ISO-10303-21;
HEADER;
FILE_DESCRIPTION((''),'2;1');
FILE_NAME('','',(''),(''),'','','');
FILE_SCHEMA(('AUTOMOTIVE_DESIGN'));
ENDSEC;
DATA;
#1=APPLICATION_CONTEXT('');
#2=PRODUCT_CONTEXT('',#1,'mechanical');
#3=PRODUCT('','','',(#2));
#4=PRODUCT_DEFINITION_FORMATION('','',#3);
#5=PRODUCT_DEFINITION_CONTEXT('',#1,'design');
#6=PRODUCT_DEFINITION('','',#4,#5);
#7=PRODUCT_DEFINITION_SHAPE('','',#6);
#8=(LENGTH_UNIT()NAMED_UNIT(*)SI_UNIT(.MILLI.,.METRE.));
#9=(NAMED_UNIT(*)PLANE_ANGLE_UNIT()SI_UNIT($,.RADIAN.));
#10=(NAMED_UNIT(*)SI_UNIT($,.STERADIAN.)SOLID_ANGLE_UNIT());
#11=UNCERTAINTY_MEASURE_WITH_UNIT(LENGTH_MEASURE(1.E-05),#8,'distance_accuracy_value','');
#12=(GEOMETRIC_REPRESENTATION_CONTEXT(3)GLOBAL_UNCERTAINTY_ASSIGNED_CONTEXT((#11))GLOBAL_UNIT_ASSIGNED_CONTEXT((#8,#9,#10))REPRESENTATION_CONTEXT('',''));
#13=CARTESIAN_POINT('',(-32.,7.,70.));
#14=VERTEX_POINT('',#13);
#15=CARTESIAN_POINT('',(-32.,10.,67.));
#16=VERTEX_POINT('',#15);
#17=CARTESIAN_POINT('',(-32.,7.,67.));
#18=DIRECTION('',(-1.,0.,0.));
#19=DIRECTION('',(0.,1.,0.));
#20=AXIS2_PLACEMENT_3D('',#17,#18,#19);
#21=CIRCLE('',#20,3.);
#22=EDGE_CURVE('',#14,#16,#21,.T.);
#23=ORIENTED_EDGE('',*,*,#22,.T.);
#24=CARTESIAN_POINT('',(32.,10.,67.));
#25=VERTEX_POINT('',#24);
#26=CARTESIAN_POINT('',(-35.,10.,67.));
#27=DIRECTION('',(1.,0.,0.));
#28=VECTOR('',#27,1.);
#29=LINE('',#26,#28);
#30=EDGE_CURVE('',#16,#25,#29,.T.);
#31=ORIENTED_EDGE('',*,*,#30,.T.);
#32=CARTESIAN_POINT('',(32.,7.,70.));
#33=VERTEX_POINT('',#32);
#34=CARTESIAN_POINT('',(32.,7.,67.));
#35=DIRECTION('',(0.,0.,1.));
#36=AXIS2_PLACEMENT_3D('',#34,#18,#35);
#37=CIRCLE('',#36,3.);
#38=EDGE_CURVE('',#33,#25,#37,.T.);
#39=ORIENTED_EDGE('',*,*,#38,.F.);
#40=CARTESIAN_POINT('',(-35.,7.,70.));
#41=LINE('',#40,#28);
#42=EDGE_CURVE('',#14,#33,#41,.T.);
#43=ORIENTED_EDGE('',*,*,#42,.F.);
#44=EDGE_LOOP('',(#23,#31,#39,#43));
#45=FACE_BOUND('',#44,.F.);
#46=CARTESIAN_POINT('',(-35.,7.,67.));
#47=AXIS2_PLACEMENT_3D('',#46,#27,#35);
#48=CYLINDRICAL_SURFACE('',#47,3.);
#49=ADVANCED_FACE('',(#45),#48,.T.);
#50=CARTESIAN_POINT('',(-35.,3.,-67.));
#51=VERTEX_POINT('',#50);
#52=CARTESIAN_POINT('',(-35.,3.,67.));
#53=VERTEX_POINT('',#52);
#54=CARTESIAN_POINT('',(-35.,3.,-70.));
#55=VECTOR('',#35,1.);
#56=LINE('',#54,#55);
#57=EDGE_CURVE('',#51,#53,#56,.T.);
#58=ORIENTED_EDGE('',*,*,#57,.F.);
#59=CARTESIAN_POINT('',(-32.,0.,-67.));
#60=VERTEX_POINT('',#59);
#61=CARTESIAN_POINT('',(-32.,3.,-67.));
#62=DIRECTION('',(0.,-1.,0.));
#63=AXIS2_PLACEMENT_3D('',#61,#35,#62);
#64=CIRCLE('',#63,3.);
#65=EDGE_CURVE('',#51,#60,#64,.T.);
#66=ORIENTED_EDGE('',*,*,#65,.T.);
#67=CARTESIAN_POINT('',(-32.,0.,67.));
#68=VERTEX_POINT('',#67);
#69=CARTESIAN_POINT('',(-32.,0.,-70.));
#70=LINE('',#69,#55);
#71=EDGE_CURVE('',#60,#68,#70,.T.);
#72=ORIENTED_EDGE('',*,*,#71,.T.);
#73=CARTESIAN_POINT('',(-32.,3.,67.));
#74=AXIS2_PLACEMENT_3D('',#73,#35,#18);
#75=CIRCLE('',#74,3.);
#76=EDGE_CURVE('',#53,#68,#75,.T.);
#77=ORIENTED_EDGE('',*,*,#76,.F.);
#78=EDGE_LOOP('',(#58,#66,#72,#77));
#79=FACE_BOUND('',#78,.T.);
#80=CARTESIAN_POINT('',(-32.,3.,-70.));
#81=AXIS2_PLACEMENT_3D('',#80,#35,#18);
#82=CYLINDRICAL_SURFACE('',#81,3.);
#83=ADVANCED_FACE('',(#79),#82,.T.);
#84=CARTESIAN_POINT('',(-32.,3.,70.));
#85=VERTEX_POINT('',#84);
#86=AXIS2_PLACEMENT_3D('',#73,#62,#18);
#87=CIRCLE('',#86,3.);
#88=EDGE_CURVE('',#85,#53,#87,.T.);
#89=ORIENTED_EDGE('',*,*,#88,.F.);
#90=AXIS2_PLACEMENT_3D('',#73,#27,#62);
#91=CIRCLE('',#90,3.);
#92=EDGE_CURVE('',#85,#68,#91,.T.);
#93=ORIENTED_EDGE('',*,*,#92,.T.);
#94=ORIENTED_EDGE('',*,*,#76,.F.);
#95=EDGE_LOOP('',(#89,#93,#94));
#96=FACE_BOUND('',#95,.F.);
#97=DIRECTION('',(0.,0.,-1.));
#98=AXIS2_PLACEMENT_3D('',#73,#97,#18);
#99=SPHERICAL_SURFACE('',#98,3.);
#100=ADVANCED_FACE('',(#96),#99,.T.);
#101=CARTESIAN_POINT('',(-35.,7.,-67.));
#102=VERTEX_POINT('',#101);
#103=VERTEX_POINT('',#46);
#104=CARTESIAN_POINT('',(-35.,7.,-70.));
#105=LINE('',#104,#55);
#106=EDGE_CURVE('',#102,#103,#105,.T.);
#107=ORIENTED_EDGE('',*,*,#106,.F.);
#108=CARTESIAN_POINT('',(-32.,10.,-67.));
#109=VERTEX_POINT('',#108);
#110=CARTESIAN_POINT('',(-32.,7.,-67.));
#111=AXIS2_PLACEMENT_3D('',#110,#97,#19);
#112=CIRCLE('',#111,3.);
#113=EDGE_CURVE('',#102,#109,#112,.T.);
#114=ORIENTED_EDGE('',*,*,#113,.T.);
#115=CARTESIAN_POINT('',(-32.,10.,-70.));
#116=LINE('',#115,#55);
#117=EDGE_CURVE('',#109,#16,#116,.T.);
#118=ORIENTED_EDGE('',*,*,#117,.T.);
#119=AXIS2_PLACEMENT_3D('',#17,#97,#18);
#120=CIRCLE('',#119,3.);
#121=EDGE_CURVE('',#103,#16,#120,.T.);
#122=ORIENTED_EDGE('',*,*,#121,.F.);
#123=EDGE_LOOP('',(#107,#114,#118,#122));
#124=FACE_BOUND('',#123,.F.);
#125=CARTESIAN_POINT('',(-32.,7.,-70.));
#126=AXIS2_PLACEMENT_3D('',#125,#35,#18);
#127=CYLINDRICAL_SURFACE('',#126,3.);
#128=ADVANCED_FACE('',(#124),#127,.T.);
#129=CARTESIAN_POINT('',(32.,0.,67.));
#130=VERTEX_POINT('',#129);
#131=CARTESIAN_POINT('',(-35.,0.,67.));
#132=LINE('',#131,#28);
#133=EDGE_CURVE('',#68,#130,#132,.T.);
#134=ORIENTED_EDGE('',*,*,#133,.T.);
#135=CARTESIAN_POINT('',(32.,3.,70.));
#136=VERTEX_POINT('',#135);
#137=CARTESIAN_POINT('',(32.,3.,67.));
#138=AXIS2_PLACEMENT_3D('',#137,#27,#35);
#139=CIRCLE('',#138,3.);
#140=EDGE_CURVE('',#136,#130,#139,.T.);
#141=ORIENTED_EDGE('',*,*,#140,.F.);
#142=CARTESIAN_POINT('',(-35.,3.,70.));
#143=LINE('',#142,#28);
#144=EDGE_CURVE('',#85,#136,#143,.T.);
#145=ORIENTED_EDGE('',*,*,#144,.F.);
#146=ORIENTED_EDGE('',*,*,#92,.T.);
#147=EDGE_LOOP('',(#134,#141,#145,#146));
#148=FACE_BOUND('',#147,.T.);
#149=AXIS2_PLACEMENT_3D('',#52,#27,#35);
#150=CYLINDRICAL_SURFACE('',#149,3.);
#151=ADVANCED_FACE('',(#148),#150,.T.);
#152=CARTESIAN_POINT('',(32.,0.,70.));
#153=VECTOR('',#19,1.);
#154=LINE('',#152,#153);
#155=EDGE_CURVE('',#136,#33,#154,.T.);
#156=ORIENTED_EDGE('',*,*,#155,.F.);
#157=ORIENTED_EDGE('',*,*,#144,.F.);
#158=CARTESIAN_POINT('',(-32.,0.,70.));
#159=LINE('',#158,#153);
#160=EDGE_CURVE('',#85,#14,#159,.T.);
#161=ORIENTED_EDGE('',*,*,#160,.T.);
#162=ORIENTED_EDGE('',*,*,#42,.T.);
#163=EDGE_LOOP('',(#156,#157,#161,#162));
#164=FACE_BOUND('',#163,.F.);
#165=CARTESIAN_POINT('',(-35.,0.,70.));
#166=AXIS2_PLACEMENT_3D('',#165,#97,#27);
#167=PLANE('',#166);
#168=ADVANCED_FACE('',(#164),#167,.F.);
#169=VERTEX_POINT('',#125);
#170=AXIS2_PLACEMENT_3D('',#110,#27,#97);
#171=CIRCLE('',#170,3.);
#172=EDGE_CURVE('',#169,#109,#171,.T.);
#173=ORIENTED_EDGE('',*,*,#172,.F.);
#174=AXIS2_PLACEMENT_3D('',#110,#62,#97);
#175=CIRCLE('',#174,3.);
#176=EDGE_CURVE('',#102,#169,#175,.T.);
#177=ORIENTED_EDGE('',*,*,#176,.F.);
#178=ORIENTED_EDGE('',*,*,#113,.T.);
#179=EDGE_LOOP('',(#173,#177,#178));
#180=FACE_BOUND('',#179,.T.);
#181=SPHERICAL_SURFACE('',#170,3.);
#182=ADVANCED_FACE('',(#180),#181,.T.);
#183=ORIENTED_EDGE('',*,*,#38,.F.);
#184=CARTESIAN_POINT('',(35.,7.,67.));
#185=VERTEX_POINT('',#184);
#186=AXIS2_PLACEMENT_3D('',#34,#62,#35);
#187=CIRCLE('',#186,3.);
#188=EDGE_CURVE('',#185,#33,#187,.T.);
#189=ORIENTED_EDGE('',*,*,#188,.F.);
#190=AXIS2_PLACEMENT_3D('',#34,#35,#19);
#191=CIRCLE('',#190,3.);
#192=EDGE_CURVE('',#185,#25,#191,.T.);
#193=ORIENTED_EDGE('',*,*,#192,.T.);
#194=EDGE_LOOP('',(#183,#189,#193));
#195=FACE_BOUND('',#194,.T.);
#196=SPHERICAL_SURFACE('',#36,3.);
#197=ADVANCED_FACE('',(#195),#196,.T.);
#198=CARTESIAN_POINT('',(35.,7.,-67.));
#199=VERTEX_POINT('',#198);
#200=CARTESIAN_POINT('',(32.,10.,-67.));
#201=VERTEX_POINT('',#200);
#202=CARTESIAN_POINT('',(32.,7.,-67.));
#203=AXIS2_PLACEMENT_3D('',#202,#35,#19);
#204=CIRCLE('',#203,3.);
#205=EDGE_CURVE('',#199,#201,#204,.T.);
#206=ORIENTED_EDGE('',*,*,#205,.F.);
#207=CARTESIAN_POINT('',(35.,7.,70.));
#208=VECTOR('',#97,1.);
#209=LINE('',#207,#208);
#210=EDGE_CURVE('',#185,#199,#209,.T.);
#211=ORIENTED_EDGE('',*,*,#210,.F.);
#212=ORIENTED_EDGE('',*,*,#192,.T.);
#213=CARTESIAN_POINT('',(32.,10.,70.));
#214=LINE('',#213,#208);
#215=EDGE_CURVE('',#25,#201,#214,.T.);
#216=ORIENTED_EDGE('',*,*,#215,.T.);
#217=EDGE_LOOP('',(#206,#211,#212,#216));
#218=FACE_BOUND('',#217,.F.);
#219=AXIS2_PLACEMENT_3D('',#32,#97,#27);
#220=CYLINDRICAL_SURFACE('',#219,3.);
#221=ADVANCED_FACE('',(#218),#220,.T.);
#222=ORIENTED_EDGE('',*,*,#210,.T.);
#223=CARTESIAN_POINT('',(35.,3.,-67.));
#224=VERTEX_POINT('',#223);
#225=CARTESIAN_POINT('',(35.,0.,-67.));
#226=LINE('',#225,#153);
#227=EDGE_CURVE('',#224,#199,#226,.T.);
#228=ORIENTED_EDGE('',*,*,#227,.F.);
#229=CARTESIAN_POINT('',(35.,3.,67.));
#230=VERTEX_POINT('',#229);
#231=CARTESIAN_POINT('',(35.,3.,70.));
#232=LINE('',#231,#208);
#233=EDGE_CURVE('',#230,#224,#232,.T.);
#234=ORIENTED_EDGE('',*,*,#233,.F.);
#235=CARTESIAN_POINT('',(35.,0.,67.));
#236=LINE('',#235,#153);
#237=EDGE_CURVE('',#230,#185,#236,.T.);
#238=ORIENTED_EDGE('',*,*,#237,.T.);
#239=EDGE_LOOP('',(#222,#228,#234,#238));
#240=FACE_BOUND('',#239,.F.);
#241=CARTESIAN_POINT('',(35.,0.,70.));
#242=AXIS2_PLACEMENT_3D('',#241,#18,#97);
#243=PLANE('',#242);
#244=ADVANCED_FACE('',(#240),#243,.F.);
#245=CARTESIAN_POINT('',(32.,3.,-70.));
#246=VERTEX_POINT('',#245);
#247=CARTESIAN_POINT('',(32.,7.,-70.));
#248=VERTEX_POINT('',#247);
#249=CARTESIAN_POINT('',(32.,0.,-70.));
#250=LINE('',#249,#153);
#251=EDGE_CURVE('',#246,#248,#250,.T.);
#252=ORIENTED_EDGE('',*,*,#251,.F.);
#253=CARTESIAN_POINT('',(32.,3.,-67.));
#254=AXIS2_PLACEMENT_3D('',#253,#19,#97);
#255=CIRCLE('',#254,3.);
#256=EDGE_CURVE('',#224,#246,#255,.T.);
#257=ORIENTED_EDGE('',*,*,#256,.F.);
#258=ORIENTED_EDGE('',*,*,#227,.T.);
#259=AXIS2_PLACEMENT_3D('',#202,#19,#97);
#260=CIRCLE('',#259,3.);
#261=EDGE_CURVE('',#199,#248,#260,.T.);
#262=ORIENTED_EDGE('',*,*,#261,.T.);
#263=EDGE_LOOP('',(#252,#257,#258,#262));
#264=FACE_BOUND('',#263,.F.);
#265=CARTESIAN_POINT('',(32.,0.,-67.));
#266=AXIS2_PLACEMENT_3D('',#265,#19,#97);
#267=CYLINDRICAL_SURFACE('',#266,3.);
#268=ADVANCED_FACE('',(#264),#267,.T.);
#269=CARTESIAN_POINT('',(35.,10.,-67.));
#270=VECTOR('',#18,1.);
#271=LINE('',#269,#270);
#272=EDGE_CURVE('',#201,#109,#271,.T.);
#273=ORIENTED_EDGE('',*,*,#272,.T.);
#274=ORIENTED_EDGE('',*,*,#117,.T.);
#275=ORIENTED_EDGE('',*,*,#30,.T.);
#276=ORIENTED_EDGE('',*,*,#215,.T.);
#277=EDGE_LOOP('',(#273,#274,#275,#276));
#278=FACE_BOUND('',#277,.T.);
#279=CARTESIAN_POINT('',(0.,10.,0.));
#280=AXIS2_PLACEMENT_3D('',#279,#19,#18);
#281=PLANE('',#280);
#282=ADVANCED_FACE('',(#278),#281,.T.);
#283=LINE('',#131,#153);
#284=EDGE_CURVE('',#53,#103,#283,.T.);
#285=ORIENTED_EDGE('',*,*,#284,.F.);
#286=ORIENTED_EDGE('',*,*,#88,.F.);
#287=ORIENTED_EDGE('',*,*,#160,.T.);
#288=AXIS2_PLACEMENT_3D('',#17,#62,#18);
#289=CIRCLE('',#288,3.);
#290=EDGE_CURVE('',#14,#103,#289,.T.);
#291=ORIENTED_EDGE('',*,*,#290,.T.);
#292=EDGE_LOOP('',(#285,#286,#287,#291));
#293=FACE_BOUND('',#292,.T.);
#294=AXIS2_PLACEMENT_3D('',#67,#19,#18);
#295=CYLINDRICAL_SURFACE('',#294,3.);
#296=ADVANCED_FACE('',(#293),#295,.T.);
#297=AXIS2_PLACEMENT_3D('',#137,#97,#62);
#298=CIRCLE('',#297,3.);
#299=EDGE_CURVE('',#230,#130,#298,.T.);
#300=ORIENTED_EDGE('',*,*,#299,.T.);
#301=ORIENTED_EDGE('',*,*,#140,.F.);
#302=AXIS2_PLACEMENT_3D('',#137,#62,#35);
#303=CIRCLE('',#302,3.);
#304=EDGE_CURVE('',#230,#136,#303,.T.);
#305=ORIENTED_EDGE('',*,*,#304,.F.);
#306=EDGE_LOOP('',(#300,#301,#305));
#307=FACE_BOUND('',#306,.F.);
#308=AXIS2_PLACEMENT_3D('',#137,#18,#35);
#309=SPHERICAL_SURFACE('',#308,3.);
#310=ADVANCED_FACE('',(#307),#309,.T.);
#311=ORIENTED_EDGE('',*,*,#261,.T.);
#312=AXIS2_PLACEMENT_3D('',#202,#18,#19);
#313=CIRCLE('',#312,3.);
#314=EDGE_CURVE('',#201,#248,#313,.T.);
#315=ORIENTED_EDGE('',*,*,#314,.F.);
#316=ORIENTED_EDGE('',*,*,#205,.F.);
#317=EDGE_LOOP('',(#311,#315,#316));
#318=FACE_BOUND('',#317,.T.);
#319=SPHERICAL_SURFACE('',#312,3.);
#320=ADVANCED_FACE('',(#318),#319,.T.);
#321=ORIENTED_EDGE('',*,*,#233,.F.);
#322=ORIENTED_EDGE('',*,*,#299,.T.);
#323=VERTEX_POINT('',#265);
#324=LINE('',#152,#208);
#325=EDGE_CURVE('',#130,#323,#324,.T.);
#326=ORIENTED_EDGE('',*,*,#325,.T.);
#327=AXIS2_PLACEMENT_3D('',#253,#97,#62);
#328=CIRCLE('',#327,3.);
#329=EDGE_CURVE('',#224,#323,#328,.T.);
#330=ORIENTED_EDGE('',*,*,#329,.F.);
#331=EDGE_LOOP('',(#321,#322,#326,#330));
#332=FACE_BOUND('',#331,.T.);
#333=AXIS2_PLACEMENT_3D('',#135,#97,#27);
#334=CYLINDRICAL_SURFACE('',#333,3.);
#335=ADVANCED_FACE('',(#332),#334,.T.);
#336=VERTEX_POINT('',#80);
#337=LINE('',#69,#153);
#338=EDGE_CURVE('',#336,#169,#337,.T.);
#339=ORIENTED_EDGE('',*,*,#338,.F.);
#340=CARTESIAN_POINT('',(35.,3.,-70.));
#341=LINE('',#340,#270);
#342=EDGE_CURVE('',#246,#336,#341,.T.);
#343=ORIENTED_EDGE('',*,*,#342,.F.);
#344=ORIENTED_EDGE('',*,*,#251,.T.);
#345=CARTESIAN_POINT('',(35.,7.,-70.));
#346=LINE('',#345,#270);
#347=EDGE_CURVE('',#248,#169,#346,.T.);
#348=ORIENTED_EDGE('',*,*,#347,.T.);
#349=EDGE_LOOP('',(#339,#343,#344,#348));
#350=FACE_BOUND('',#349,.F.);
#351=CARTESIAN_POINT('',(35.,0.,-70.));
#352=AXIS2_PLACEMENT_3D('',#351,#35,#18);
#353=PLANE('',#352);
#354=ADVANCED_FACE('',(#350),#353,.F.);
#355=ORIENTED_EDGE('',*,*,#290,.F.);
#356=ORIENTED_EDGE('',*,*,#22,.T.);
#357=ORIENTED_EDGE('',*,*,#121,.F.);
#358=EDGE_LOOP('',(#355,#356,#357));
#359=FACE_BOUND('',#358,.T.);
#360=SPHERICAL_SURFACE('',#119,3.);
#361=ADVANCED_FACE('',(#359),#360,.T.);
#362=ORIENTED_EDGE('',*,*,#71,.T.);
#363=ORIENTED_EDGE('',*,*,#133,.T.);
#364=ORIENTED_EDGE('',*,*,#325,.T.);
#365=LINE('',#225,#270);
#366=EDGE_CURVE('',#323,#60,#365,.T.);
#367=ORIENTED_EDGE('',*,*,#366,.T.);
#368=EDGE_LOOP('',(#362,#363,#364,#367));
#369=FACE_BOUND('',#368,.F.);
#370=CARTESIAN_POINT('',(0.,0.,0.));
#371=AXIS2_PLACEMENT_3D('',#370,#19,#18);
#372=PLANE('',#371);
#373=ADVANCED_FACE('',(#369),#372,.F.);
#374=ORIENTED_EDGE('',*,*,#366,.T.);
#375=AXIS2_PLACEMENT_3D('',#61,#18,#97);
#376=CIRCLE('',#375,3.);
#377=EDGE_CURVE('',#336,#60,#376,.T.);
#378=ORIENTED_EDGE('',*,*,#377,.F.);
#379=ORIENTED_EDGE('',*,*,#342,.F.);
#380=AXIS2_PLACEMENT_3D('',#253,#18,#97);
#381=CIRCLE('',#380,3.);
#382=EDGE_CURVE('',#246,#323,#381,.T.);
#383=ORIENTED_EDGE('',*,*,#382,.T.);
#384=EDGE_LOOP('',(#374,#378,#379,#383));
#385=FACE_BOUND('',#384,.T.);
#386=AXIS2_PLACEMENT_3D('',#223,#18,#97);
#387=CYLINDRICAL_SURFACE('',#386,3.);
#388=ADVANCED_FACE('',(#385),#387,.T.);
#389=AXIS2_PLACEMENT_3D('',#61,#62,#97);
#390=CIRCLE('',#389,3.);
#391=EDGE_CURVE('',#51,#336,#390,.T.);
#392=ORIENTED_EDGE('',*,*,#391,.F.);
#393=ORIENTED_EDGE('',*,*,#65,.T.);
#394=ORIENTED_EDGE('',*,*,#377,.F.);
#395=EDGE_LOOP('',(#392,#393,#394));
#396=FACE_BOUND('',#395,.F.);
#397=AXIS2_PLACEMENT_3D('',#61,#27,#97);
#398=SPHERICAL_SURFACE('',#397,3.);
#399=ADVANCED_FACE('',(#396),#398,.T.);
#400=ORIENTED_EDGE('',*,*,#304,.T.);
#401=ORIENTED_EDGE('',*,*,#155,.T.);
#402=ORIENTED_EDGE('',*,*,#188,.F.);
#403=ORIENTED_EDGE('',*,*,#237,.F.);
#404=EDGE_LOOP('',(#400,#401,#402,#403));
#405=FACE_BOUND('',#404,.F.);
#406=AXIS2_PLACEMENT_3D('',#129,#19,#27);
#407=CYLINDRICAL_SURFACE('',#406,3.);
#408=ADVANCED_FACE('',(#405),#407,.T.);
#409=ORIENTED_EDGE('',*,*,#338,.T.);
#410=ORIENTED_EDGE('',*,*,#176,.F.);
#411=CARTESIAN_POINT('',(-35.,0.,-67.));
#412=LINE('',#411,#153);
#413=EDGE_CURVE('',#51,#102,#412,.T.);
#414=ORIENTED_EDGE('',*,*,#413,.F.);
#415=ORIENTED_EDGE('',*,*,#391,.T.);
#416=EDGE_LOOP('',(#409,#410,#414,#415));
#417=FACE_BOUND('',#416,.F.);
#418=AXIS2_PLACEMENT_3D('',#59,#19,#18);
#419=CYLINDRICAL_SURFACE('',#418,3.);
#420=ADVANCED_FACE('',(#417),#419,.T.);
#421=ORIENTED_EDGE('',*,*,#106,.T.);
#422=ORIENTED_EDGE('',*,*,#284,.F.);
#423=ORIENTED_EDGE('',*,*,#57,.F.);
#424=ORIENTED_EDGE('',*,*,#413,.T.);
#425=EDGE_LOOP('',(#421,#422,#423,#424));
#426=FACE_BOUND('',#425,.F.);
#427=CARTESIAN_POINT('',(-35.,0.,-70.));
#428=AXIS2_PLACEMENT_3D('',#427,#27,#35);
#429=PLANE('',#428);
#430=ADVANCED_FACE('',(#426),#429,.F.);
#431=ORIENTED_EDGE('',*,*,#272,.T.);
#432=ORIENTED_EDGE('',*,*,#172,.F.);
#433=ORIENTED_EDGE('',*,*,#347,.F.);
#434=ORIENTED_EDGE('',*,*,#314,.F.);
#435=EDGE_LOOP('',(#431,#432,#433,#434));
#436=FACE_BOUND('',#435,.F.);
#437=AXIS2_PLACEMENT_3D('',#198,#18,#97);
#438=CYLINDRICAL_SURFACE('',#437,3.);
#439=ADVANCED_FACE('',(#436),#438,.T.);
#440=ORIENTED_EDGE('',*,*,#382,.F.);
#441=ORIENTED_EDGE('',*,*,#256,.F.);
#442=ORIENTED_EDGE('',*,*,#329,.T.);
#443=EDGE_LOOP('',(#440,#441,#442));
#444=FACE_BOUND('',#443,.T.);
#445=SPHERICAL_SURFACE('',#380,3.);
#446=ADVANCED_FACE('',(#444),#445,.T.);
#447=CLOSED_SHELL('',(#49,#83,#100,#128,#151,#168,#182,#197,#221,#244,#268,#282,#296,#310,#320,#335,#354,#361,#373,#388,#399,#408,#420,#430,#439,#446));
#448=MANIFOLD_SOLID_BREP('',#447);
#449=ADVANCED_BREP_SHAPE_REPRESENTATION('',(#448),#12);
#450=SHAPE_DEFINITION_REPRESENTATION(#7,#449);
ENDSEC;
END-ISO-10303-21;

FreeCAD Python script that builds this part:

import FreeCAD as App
import Part
import Sketcher
from FreeCAD import Vector

doc = App.newDocument("Part")
body = doc.addObject("PartDesign::Body", "Body")

# Sketch on XZ plane
sketch1 = doc.addObject("Sketcher::SketchObject", "Sketch")
body.addObject(sketch1)
sketch1.AttachmentSupport = (doc.XZ_Plane, [""])
sketch1.MapMode = "FlatFace"
sketch1.addGeometry([
    Part.LineSegment(Vector(-35, -70, 0), Vector(-35, 70, 0)),
    Part.LineSegment(Vector(-35, 70, 0), Vector(35, 70, 0)),
    Part.LineSegment(Vector(35, 70, 0), Vector(35, -70, 0)),
    Part.LineSegment(Vector(35, -70, 0), Vector(-35, -70, 0)),
], False)
sketch1.addConstraint([
    Sketcher.Constraint("Coincident", 0, 2, 1, 1),
    Sketcher.Constraint("Coincident", 1, 2, 2, 1),
    Sketcher.Constraint("Coincident", 2, 2, 3, 1),
    Sketcher.Constraint("Coincident", 3, 2, 0, 1),
    Sketcher.Constraint("Vertical", 0),
    Sketcher.Constraint("Horizontal", 1),
    Sketcher.Constraint("Vertical", 2),
    Sketcher.Constraint("Horizontal", 3),
    Sketcher.Constraint("Symmetric", 0, 2, 2, 2, -1, 1),
    Sketcher.Constraint("DistanceX", 1, 1, 1, 2, 70.0),
    Sketcher.Constraint("DistanceY", 0, 1, 0, 2, 140.0),
])
pad1 = doc.addObject("PartDesign::Pad", "Pad")
body.addObject(pad1)
pad1.Profile = sketch1
pad1.Length = 10
pad1.Reversed = True
doc.recompute()

fillet = doc.addObject("PartDesign::Fillet", "Fillet")
body.addObject(fillet)
fillet.Base = (pad1, ["Edge1"])
fillet.UseAllEdges = True
fillet.Radius = 3

doc.recompute()
